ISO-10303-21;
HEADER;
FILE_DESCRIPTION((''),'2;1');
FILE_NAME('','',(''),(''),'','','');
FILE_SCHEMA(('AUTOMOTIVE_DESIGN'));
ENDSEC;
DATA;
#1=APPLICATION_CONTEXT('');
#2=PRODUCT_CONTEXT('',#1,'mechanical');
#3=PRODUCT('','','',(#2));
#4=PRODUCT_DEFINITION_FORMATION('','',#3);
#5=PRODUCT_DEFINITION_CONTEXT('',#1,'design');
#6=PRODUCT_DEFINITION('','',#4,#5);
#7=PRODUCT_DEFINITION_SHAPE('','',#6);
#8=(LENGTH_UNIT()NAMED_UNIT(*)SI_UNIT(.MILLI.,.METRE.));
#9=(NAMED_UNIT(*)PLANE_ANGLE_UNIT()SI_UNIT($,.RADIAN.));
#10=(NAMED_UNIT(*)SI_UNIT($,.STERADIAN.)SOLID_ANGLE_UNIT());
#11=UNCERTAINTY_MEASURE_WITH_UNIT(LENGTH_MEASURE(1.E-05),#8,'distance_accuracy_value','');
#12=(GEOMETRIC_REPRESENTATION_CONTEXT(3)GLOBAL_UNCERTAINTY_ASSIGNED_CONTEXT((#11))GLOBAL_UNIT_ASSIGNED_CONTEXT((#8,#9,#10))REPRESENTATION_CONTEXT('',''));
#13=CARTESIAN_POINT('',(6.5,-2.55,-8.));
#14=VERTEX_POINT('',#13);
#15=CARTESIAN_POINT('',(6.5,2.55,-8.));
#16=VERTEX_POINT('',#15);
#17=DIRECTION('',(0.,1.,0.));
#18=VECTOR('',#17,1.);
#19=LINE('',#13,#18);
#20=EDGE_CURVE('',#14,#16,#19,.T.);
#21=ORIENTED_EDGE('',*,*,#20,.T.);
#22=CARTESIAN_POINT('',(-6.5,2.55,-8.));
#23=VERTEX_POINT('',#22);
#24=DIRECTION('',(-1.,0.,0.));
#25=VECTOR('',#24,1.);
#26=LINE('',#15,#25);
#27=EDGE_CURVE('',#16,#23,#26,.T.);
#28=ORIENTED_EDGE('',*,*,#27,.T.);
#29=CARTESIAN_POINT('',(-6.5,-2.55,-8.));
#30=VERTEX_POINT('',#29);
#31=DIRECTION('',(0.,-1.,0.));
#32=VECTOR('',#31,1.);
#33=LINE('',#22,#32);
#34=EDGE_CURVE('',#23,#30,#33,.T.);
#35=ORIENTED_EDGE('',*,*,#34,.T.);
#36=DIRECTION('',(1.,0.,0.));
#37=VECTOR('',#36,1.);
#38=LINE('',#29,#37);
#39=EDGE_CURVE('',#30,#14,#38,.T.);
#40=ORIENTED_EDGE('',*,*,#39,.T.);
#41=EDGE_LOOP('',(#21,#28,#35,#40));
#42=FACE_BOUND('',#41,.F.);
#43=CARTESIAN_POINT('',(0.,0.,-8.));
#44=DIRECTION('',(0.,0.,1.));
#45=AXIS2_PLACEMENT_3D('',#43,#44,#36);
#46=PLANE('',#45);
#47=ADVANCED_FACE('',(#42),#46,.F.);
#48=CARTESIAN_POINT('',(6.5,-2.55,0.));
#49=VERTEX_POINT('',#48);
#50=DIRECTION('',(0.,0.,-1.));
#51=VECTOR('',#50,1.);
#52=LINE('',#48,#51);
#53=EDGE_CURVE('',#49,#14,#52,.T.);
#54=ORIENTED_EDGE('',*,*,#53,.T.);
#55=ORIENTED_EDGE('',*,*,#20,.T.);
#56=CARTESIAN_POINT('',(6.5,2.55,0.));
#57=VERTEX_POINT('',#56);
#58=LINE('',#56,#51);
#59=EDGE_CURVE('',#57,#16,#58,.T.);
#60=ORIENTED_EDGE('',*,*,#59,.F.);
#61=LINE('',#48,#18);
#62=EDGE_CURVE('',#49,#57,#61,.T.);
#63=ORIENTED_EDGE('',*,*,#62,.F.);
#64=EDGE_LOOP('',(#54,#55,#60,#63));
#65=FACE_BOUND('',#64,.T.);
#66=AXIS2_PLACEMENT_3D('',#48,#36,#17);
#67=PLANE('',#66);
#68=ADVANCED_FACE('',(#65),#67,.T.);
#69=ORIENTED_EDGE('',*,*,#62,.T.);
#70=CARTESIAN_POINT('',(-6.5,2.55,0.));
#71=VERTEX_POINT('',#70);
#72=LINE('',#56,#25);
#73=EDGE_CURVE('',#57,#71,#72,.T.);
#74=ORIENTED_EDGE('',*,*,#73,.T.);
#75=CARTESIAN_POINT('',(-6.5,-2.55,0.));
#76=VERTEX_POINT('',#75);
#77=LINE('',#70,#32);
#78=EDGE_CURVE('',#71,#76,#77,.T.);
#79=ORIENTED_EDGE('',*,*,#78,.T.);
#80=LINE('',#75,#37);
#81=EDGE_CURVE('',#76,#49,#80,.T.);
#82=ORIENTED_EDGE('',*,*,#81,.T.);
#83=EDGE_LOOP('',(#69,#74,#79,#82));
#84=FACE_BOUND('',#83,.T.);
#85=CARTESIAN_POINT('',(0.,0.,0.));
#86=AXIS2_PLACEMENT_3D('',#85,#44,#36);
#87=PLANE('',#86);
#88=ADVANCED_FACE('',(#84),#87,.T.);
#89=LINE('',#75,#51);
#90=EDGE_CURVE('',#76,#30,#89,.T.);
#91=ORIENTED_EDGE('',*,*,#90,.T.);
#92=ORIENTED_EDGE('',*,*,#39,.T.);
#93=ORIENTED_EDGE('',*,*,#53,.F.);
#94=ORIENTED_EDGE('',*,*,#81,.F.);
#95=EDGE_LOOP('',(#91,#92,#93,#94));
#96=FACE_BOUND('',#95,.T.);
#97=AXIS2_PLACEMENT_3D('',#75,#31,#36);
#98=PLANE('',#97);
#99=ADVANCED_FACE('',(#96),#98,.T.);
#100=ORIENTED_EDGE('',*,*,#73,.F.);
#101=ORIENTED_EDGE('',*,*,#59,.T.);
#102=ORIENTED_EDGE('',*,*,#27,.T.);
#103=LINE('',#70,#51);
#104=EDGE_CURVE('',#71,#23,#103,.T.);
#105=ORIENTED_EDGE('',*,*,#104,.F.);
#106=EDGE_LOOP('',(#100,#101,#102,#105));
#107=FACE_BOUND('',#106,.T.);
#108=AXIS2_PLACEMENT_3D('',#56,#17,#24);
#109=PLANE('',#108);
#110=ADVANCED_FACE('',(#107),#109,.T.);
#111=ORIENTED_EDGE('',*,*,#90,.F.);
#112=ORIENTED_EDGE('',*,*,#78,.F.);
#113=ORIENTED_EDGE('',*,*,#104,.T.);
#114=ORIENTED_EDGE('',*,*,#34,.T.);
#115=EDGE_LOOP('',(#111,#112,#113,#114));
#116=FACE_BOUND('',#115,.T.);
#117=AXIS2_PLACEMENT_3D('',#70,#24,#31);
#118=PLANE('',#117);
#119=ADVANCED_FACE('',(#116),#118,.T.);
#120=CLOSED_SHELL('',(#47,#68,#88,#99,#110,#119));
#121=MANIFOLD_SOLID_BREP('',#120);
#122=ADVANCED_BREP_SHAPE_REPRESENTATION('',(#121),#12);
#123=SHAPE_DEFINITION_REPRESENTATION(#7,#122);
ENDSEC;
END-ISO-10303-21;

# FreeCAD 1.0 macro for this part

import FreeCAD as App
import Part
import Sketcher
from FreeCAD import Vector
Q = App.Units.Quantity

doc = App.newDocument("Part")
body = doc.addObject("PartDesign::Body", "Body")

# Sketch on XY plane
sketch1 = body.newObject("Sketcher::SketchObject", "Sketch")
sketch1.AttachmentSupport = (doc.getObject("XY_Plane"), [""])
sketch1.MapMode = "FlatFace"
sketch1.addGeometry([
    Part.LineSegment(Vector(-6, 3, 0), Vector(-6, -3, 0)),
    Part.LineSegment(Vector(-6, -3, 0), Vector(6, -3, 0)),
    Part.LineSegment(Vector(6, -3, 0), Vector(6, 3, 0)),
    Part.LineSegment(Vector(6, 3, 0), Vector(-6, 3, 0)),
], False)
sketch1.addConstraint([
    Sketcher.Constraint("Coincident", 0, 2, 1, 1),
    Sketcher.Constraint("Coincident", 1, 2, 2, 1),
    Sketcher.Constraint("Coincident", 2, 2, 3, 1),
    Sketcher.Constraint("Coincident", 3, 2, 0, 1),
    Sketcher.Constraint("Vertical", 0),
    Sketcher.Constraint("Horizontal", 1),
    Sketcher.Constraint("Vertical", 2),
    Sketcher.Constraint("Horizontal", 3),
    Sketcher.Constraint("Symmetric", 0, 2, 2, 2, -1, 1),
    Sketcher.Constraint("DistanceX", 0, 2, -1, 1, Q("6.5 mm")),
    Sketcher.Constraint("DistanceY", 0, 2, 0, 1, Q("5.1 mm")),
])
pad1 = body.newObject("PartDesign::Pad", "Pad")
pad1.Profile = sketch1
pad1.Length = 8
pad1.Reversed = True

doc.recompute()
